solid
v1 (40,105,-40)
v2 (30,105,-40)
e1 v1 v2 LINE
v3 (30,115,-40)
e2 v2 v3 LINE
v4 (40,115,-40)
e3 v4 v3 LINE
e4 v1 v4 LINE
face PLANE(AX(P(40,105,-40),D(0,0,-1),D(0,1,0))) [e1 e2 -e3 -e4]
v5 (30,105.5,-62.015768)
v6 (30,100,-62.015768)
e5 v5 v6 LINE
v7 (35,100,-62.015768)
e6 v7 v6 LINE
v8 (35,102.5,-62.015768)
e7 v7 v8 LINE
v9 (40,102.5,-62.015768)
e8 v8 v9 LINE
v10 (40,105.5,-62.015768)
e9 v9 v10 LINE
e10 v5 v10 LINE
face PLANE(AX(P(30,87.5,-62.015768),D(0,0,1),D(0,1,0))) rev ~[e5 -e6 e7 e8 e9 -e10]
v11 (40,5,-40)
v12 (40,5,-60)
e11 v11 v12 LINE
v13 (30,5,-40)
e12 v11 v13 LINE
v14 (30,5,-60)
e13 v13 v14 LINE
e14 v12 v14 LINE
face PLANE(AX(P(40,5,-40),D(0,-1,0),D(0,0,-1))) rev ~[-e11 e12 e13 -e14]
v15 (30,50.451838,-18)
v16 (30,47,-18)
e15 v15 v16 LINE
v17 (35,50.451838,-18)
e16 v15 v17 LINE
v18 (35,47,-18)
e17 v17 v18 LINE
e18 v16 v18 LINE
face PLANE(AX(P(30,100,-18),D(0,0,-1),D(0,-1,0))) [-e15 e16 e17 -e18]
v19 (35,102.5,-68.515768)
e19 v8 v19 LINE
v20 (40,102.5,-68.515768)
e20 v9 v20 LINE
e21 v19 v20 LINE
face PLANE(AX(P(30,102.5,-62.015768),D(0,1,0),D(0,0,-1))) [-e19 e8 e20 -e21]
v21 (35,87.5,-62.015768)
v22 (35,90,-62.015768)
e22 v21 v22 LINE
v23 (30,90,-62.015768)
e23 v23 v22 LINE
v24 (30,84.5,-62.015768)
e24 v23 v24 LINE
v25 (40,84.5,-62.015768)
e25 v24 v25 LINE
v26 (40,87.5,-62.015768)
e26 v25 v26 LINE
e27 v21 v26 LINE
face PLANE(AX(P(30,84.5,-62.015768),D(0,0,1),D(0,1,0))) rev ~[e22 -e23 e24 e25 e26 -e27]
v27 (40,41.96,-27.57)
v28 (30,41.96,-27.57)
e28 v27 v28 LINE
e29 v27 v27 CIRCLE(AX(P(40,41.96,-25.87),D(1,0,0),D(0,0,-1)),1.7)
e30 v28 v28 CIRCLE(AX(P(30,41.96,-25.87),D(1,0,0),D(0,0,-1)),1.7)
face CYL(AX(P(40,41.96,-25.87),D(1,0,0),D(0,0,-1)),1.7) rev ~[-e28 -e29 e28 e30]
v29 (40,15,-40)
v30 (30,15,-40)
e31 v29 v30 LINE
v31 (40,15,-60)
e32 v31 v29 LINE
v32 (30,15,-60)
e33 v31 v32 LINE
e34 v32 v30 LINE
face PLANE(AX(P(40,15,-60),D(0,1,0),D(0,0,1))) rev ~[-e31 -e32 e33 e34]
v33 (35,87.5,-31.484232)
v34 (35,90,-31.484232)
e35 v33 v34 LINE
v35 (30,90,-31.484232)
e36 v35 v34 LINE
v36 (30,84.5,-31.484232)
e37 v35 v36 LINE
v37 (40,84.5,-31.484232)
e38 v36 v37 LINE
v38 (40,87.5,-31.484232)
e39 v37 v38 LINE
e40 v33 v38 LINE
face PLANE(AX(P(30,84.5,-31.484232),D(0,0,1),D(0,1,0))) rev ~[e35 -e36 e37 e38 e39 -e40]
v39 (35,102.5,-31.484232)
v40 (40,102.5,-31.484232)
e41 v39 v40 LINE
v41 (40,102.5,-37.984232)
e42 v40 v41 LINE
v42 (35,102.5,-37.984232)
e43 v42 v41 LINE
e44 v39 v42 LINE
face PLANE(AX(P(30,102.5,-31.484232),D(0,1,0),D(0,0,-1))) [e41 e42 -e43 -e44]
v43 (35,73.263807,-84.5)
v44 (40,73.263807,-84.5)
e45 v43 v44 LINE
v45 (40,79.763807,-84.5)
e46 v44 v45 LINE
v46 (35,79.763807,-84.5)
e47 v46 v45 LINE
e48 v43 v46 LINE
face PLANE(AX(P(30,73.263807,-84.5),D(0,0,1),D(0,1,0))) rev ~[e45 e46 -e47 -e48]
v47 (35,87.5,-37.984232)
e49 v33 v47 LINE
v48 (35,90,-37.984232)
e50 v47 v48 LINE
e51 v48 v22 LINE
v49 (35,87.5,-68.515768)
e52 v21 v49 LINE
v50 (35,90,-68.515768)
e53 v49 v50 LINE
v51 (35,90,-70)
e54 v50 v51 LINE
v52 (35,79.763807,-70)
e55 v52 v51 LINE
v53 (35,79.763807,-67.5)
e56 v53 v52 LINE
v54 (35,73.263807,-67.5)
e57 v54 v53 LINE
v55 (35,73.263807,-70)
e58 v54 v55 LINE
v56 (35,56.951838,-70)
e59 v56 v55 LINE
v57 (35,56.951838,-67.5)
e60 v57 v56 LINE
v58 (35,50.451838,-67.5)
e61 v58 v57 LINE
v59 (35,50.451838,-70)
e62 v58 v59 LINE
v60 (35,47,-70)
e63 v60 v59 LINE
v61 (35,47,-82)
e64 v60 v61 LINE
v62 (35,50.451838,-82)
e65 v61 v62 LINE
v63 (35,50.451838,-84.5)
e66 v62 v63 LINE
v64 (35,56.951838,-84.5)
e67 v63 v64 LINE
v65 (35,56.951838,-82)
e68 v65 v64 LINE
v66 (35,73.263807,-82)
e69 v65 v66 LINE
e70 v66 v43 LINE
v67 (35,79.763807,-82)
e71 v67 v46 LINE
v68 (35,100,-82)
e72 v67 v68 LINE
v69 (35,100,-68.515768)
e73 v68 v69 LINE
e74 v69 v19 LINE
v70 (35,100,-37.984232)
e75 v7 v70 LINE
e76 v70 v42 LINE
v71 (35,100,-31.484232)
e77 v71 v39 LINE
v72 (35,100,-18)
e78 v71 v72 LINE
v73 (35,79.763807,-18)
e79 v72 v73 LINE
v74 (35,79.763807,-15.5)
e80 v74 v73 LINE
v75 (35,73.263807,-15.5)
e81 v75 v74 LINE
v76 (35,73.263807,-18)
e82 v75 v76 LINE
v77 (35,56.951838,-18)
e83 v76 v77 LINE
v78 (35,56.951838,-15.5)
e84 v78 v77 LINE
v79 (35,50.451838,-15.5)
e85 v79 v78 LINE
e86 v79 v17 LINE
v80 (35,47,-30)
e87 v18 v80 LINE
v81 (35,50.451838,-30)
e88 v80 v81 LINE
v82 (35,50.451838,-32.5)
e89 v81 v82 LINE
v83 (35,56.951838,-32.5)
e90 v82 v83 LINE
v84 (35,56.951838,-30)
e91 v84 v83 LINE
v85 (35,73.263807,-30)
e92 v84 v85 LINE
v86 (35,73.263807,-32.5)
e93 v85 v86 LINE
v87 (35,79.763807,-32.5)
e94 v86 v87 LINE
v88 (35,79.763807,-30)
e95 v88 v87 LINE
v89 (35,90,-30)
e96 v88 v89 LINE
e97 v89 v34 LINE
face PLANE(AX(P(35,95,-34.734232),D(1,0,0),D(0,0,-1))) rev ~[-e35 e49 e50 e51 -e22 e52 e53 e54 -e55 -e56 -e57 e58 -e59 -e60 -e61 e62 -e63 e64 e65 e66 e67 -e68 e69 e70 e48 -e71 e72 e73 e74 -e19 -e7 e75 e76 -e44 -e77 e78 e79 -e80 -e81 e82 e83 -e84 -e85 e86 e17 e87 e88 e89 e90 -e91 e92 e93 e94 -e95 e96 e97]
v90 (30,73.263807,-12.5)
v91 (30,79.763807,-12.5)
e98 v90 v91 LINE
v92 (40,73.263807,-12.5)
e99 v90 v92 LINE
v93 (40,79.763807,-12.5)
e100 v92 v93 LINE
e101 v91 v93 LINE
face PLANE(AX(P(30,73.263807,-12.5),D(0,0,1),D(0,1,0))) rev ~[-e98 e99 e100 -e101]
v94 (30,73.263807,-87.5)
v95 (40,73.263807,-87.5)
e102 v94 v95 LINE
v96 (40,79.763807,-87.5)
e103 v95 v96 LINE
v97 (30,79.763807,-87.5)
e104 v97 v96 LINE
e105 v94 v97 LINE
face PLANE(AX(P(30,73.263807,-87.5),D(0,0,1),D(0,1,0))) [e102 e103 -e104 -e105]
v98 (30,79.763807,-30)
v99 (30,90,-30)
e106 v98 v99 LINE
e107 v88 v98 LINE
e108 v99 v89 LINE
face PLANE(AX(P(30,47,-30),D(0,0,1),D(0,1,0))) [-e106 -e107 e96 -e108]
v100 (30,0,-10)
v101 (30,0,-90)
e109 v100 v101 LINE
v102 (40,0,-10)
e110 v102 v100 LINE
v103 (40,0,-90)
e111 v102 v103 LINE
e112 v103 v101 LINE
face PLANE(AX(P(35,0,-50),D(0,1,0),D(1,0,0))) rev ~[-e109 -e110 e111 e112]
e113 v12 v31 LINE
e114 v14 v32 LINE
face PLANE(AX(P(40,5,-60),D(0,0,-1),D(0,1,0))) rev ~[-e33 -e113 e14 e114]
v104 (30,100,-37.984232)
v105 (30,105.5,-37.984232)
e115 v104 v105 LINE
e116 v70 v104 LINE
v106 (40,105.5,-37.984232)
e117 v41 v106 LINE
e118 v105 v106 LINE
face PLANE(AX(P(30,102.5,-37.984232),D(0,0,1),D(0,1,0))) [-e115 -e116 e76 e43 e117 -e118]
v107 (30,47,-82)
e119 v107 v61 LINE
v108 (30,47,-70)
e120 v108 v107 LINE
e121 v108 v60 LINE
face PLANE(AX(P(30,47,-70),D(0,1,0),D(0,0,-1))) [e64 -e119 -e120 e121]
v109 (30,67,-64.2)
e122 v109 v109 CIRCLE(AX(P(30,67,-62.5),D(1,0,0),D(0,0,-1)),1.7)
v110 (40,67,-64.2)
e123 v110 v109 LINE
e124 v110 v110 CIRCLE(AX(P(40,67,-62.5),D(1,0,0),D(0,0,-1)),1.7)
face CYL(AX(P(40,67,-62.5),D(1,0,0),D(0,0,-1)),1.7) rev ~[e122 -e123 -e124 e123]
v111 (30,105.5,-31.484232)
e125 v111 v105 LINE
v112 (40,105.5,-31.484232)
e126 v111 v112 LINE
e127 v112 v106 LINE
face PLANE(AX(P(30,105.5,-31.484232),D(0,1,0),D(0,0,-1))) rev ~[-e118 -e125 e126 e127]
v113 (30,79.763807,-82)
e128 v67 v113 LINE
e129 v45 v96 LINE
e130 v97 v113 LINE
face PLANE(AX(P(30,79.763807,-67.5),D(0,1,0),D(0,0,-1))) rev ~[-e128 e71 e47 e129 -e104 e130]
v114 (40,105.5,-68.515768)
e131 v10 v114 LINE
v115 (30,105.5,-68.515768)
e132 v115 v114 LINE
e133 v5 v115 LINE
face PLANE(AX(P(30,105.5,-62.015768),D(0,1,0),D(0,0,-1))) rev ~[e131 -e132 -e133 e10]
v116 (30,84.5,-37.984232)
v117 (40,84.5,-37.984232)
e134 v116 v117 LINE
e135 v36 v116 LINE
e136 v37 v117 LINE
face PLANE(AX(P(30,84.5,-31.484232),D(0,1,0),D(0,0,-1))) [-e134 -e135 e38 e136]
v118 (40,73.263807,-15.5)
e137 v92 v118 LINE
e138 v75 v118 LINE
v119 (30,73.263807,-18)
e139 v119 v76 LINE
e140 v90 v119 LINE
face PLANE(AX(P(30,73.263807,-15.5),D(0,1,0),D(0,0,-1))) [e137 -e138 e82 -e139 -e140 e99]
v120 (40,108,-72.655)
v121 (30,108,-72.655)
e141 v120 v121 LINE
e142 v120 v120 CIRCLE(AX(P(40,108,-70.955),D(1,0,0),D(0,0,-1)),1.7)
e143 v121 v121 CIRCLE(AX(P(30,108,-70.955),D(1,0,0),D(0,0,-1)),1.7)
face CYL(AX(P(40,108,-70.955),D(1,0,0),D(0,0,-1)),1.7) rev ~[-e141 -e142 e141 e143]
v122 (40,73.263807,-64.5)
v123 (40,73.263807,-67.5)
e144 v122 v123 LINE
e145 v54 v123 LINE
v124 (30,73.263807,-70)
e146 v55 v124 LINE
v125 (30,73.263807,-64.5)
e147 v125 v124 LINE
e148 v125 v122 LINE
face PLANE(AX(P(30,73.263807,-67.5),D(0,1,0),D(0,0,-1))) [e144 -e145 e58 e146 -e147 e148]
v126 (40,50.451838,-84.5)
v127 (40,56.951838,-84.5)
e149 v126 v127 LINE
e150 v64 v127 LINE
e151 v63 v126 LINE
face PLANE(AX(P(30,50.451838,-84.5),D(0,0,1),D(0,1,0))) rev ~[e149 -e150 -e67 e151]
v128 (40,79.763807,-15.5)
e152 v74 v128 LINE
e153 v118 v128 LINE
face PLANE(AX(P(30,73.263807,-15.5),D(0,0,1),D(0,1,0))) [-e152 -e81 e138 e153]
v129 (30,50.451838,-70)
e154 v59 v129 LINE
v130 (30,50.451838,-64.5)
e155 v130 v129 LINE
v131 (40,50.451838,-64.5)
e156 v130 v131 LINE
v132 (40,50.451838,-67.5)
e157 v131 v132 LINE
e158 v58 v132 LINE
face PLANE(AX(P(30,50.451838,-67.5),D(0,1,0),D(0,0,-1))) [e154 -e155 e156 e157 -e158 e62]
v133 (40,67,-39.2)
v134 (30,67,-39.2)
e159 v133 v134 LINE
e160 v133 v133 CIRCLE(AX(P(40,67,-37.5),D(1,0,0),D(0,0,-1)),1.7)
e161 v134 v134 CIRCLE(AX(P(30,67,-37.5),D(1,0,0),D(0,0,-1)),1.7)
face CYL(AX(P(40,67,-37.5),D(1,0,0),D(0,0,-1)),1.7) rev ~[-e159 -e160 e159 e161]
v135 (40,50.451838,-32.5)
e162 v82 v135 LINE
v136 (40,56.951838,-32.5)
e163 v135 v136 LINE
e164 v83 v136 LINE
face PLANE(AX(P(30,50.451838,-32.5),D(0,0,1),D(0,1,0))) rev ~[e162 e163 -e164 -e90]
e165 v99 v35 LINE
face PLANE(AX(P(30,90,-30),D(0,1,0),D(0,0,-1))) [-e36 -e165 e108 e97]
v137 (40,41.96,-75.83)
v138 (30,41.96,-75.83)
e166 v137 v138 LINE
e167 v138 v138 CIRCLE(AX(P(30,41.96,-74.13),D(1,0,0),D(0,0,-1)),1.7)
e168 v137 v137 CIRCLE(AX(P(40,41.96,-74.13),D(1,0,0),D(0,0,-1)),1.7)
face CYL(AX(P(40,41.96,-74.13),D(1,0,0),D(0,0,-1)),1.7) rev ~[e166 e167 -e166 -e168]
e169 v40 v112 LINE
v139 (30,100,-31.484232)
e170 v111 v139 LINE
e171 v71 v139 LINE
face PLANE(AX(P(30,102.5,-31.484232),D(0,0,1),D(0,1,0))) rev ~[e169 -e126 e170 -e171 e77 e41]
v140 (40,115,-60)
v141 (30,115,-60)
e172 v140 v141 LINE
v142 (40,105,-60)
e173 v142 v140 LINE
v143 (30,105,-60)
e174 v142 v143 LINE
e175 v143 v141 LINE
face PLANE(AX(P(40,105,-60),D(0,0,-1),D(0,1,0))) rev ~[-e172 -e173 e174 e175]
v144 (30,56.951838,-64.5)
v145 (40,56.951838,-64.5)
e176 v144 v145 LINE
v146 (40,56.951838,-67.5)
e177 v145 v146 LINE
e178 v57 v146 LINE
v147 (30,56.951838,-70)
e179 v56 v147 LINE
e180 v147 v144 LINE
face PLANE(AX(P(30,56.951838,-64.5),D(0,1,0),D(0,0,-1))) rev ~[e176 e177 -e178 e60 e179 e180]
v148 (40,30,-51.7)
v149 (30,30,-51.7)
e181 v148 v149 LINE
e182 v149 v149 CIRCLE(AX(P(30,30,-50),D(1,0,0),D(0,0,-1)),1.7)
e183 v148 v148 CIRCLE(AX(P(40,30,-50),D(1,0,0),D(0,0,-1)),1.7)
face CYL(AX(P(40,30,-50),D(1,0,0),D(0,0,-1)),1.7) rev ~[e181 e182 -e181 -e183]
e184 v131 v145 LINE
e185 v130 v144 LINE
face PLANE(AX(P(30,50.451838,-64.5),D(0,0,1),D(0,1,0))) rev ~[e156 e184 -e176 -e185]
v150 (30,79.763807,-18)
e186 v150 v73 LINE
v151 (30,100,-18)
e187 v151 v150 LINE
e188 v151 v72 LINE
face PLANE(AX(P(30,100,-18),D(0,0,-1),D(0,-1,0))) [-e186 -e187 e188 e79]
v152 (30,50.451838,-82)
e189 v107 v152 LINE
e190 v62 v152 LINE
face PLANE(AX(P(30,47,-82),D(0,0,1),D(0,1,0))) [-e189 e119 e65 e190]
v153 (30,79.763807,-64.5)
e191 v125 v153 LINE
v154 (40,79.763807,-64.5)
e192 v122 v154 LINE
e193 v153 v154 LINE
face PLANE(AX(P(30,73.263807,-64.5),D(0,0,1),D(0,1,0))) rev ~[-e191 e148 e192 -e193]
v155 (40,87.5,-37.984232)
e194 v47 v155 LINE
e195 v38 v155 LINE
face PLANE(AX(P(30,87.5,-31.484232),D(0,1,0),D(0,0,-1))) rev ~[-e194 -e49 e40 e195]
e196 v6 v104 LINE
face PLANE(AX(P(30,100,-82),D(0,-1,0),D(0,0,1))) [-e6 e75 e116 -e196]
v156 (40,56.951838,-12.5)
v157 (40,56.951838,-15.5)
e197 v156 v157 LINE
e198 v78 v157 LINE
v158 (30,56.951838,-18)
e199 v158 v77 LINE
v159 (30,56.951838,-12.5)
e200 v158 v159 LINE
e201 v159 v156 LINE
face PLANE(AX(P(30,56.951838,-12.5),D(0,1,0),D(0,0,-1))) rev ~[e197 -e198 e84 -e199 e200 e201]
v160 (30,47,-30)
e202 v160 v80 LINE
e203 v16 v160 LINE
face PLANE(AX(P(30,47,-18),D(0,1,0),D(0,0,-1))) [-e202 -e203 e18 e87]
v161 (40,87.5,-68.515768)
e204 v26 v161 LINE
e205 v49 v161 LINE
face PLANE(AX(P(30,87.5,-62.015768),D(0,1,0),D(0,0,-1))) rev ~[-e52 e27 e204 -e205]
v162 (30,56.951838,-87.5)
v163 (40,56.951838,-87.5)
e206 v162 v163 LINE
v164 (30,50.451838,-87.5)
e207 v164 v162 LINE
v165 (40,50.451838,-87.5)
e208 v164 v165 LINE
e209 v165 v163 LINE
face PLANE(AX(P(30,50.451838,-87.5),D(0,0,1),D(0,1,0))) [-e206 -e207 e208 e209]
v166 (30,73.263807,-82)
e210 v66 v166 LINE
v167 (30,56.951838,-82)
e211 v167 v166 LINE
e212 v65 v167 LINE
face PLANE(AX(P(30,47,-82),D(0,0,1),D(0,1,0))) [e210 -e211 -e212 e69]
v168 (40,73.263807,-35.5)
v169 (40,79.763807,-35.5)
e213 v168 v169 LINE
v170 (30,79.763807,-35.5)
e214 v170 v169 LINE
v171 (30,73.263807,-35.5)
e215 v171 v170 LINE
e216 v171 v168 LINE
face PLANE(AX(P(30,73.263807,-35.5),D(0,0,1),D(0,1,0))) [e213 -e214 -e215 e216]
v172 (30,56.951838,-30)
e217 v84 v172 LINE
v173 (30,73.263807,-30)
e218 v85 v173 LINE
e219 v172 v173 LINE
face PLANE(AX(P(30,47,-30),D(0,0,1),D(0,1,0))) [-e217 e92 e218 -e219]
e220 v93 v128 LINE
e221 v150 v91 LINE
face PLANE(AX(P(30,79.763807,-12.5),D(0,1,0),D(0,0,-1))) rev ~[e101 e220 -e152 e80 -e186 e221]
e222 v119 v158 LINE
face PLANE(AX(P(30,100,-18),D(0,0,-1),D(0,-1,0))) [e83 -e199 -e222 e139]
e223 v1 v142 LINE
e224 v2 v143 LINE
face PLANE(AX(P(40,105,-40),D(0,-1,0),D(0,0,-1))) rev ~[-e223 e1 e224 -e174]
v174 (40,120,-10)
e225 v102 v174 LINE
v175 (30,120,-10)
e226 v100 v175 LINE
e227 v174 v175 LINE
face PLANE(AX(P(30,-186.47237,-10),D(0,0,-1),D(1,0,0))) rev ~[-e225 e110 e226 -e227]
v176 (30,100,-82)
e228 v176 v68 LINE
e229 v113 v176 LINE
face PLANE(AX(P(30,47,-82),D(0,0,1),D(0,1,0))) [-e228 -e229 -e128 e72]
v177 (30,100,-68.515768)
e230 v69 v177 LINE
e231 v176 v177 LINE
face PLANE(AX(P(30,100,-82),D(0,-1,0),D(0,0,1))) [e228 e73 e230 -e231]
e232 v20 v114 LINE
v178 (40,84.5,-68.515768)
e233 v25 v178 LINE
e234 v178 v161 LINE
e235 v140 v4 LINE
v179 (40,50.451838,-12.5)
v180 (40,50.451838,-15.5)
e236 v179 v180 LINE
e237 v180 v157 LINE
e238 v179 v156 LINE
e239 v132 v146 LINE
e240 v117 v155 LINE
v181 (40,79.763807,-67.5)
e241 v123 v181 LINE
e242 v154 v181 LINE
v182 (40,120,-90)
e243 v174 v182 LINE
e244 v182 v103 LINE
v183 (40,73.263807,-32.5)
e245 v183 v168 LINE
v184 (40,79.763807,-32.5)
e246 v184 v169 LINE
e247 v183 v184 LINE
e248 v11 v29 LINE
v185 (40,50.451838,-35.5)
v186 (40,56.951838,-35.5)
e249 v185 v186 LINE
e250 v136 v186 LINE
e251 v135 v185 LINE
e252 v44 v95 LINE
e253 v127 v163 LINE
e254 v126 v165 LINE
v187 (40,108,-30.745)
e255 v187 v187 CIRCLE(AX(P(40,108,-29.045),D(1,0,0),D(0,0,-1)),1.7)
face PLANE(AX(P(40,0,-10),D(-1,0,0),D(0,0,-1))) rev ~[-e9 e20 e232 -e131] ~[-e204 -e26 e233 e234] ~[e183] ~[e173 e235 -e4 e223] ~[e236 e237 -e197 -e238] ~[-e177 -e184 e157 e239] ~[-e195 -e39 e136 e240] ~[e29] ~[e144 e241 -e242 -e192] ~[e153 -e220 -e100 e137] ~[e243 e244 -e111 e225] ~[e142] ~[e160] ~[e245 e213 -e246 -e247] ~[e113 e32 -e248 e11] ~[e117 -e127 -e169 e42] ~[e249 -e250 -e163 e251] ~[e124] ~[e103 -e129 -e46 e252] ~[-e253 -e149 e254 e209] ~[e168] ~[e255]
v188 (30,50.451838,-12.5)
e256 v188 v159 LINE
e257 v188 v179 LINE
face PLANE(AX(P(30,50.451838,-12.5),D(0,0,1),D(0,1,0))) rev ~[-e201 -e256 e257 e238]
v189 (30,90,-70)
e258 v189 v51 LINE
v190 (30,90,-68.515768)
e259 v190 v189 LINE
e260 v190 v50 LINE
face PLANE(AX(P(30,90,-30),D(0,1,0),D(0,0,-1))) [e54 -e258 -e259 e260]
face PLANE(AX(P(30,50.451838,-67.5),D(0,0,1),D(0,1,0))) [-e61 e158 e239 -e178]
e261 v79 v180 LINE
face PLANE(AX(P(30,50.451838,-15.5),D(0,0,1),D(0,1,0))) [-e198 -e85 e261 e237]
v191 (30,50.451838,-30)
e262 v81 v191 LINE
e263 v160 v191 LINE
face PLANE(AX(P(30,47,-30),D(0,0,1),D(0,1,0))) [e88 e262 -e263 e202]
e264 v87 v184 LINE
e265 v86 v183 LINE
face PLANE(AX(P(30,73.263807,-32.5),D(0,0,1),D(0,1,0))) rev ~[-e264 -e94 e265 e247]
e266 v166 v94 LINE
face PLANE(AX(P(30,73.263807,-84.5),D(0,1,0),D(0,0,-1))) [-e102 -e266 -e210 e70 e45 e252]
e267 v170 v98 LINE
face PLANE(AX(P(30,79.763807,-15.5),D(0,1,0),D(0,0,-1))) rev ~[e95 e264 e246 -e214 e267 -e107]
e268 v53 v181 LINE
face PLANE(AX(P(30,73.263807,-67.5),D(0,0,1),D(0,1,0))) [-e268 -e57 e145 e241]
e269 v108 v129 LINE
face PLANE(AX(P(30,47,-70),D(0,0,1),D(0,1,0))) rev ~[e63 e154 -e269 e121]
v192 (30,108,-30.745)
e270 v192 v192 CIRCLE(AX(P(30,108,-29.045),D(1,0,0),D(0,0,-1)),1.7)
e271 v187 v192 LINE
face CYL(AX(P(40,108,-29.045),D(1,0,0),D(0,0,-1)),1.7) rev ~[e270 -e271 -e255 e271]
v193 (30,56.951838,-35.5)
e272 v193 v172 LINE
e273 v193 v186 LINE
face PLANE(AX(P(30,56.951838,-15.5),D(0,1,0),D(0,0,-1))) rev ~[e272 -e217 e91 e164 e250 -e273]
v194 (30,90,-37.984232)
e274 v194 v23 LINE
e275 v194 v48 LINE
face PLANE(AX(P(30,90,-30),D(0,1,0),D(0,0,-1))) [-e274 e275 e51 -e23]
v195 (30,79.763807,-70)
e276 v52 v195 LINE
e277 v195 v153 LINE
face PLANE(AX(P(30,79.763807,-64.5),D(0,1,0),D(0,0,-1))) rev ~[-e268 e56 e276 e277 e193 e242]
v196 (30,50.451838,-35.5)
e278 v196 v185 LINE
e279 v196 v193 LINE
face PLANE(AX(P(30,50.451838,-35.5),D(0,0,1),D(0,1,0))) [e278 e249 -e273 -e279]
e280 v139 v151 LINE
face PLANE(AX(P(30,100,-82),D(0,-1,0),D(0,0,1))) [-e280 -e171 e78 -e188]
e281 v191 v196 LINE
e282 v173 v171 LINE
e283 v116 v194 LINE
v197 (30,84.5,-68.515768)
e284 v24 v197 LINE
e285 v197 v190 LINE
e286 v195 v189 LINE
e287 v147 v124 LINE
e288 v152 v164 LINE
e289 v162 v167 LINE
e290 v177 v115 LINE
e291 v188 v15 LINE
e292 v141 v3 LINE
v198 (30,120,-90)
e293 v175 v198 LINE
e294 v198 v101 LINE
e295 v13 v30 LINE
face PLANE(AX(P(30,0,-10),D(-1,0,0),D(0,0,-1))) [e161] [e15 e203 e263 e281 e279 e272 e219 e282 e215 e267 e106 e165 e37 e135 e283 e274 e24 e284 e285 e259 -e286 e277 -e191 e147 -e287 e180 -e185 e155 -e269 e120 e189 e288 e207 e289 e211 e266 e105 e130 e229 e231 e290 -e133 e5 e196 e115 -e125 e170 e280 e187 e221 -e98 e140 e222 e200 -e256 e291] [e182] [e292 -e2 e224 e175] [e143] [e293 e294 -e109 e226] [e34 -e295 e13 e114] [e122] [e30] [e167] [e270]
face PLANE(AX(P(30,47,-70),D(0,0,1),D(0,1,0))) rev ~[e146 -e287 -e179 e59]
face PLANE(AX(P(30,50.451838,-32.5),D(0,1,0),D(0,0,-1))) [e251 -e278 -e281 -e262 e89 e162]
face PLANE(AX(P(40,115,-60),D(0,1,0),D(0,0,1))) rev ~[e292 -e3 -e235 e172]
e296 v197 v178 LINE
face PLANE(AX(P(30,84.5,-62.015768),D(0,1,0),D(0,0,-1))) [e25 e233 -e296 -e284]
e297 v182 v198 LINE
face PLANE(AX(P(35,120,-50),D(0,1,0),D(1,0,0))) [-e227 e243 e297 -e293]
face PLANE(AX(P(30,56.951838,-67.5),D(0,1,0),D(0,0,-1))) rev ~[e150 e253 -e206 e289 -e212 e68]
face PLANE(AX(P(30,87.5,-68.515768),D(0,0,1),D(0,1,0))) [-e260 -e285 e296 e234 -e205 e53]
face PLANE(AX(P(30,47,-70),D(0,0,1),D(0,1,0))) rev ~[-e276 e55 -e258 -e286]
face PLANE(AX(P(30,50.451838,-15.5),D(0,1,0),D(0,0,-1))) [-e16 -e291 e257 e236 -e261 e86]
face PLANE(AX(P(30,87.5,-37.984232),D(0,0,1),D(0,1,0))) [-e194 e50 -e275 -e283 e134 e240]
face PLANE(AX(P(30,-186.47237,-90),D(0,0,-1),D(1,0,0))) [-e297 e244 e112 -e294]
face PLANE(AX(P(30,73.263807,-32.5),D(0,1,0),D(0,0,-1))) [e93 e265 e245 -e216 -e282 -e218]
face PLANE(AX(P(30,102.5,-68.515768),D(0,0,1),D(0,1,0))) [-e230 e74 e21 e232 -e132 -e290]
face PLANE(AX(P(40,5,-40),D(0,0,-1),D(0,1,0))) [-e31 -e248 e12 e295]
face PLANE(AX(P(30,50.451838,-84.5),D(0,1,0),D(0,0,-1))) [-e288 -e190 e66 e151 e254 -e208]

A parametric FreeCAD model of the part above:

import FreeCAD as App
import Part
import Sketcher
Q = App.Units.Quantity


def add_polygon(sketch, points):
    """Adds a closed chain of lines whose ends are joined by coincident constraints."""
    first, n = sketch.GeometryCount, len(points)
    for a, b in zip(points, points[1:] + points[:1]):
        sketch.addGeometry(Part.LineSegment(App.Vector(*a, 0), App.Vector(*b, 0)), False)
    for i in range(n):
        sketch.addConstraint(Sketcher.Constraint("Coincident", first + i, 2, first + (i + 1) % n, 1))

doc = App.newDocument("Part")
body = doc.addObject("PartDesign::Body", "Body")

# Sketch on XZ plane
sketch1 = doc.addObject("Sketcher::SketchObject", "Sketch")
body.addObject(sketch1)
sketch1.AttachmentSupport = (doc.XZ_Plane, [""])
sketch1.MapMode = "FlatFace"
add_polygon(sketch1, [(0, -100), (0, 0), (100, 0), (100, -100)])  # lines 0-3
add_polygon(sketch1, [(90, -10), (10, -10), (10, -90), (90, -90)])  # lines 4-7
sketch1.addConstraint([
    Sketcher.Constraint("Vertical", 0),
    Sketcher.Constraint("Horizontal", 1),
    Sketcher.Constraint("Vertical", 2),
    Sketcher.Constraint("Horizontal", 3),
    Sketcher.Constraint("Horizontal", 4),
    Sketcher.Constraint("Vertical", 5),
    Sketcher.Constraint("Horizontal", 6),
    Sketcher.Constraint("Vertical", 7),
    Sketcher.Constraint("Coincident", 0, 2, -1, 1),
    Sketcher.Constraint("Equal", 3, 0),
    Sketcher.Constraint("Equal", 6, 5),
    Sketcher.Constraint("DistanceX", 1, 1, 1, 2, Q("100 mm")),
    Sketcher.Constraint("DistanceX", 4, 2, 4, 1, Q("80 mm")),
    Sketcher.Constraint("DistanceX", -1, 1, 4, 2, Q("10 mm")),
    Sketcher.Constraint("DistanceY", 4, 2, -1, 1, Q("10 mm")),
])
pad1 = doc.addObject("PartDesign::Pad", "Pad")
body.addObject(pad1)
pad1.Profile = sketch1
pad1.Length = 120
pad1.Reversed = True

# Sketch on XY plane
sketch2 = doc.addObject("Sketcher::SketchObject", "Sketch001")
body.addObject(sketch2)
sketch2.AttachmentSupport = (doc.XY_Plane, [""])
sketch2.MapMode = "FlatFace"
add_polygon(sketch2, [(14.841875, 110), (50, 67.81025), (85.158125, 110)])  # lines 0-2
add_polygon(sketch2, [(90, 100.18975), (56.508541, 60), (90, 19.81025)])  # lines 3-5
add_polygon(sketch2, [(50, 52.18975), (14.841875, 10), (85.158125, 10)])  # lines 6-8
add_polygon(sketch2, [(10, 19.81025), (43.491459, 60), (10, 100.18975)])  # lines 9-11
sketch2.addConstraint([
    Sketcher.Constraint("Horizontal", 2),
    Sketcher.Constraint("Vertical", 5),
    Sketcher.Constraint("Horizontal", 7),
    Sketcher.Constraint("Vertical", 11),
    Sketcher.Constraint("Parallel", 1, 3),
    Sketcher.Constraint("Parallel", 0, 4),
    Sketcher.Constraint("Parallel", 3, 6),
    Sketcher.Constraint("Parallel", 4, 8),
    Sketcher.Constraint("Parallel", 6, 9),
    Sketcher.Constraint("Parallel", 8, 10),
    Sketcher.Constraint("Horizontal", 3, 2, 9, 2),
    Sketcher.Constraint("Horizontal", 5, 2, 10, 2),
    Sketcher.Constraint("Horizontal", 4, 2, 11, 2),
    Sketcher.Constraint("Vertical", 2, 2, 6, 2),
    Sketcher.Constraint("Vertical", 1, 2, 7, 2),
    Sketcher.Constraint("DistanceX", -1, 1, 0, 2, Q("50 mm")),
    Sketcher.Constraint("DistanceY", -1, 1, 1, 2, Q("110 mm")),
    Sketcher.Constraint("DistanceY", -1, 1, 3, 2, Q("60 mm")),
    Sketcher.Constraint("DistanceX", -1, 1, 4, 2, Q("90 mm")),
    Sketcher.Constraint("DistanceY", -1, 1, 6, 2, Q("10 mm")),
    Sketcher.Constraint("DistanceX", -1, 1, 10, 2, Q("10 mm")),
    Sketcher.Constraint("DistanceY", 4, 2, 0, 2, Q("48 mm")),
    Sketcher.Constraint("DistanceY", 5, 1, 5, 2, Q("80.379501 mm")),
    Sketcher.Constraint("DistanceX", 2, 2, 2, 1, Q("70.316251 mm")),
])
pocket1 = doc.addObject("PartDesign::Pocket", "Pocket")
body.addObject(pocket1)
pocket1.Profile = sketch2
pocket1.Length = 372.94474
pocket1.Midplane = True
doc.recompute()

datumline = doc.addObject("PartDesign::Line", "DatumLine")
body.addObject(datumline)
datumline.Placement = App.Placement(App.Vector(50, 0, -50), App.Rotation(App.Vector(0, 0, 1), App.Vector(0, 1, 0)))
polarpattern = doc.addObject("PartDesign::PolarPattern", "PolarPattern")
body.addObject(polarpattern)
polarpattern.Originals = [pocket1]
polarpattern.Axis = (datumline, [""])
polarpattern.Angle = 90
polarpattern.Occurrences = 2
body.Tip = polarpattern

# Sketch on XZ plane
sketch3 = doc.addObject("Sketcher::SketchObject", "Sketch002")
body.addObject(sketch3)
sketch3.AttachmentSupport = (doc.XZ_Plane, [""])
sketch3.MapMode = "FlatFace"
sketch3.AttachmentOffset = App.Placement(App.Vector(0, 0, -120), App.Rotation())
sketch3.addGeometry([
    Part.Circle(App.Vector(13.375, -86.625, 0), App.Vector(0, 0, 1), 13.375),  # 0
    Part.Circle(App.Vector(13.375, -86.625, 0), App.Vector(0, 0, 1), 8.4375),  # 1
    Part.Circle(App.Vector(86.625, -86.625, 0), App.Vector(0, 0, 1), 13.375),  # 2
    Part.Circle(App.Vector(86.625, -86.625, 0), App.Vector(0, 0, 1), 8.4375),  # 3
    Part.Circle(App.Vector(86.625, -13.375, 0), App.Vector(0, 0, 1), 13.375),  # 4
    Part.Circle(App.Vector(86.625, -13.375, 0), App.Vector(0, 0, 1), 8.4375),  # 5
    Part.Circle(App.Vector(13.375, -13.375, 0), App.Vector(0, 0, 1), 13.375),  # 6
    Part.Circle(App.Vector(13.375, -13.375, 0), App.Vector(0, 0, 1), 8.4375),  # 7
], False)
sketch3.addConstraint([
    Sketcher.Constraint("Coincident", 1, 3, 0, 3),
    Sketcher.Constraint("Coincident", 3, 3, 2, 3),
    Sketcher.Constraint("Coincident", 5, 3, 4, 3),
    Sketcher.Constraint("Coincident", 7, 3, 6, 3),
    Sketcher.Constraint("Equal", 0, 2),
    Sketcher.Constraint("Equal", 1, 3),
    Sketcher.Constraint("Equal", 2, 4),
    Sketcher.Constraint("Equal", 3, 5),
    Sketcher.Constraint("Equal", 4, 6),
    Sketcher.Constraint("Equal", 5, 7),
    Sketcher.Constraint("Horizontal", 1, 3, 2, 3),
    Sketcher.Constraint("Horizontal", 5, 3, 6, 3),
    Sketcher.Constraint("Vertical", 3, 3, 4, 3),
    Sketcher.Constraint("Vertical", 1, 3, 6, 3),
    Sketcher.Constraint("Diameter", 0, Q("26.75 mm")),
    Sketcher.Constraint("Diameter", 1, Q("16.875 mm")),
    Sketcher.Constraint("DistanceX", 0, 3, 2, 3, Q("73.25 mm")),
    Sketcher.Constraint("DistanceY", 2, 3, 4, 3, Q("73.25 mm")),
    Sketcher.Constraint("DistanceX", -1, 1, 0, 3, Q("13.375 mm")),
    Sketcher.Constraint("DistanceY", 0, 3, -1, 1, Q("86.625 mm")),
])
pad2 = doc.addObject("PartDesign::Pad", "Pad001")
body.addObject(pad2)
pad2.Profile = sketch3
pad2.Length = 10

# Sketch on XZ plane
sketch4 = doc.addObject("Sketcher::SketchObject", "Sketch003")
body.addObject(sketch4)
sketch4.AttachmentSupport = (doc.XZ_Plane, [""])
sketch4.MapMode = "FlatFace"
sketch4.AttachmentOffset = App.Placement(App.Vector(0, 0, -10), App.Rotation())
sketch4.addGeometry([
    Part.Circle(App.Vector(13.375, -86.625, 0), App.Vector(0, 0, 1), 13.375),  # 0
    Part.Circle(App.Vector(86.625, -86.625, 0), App.Vector(0, 0, 1), 13.375),  # 1
    Part.Circle(App.Vector(86.625, -86.625, 0), App.Vector(0, 0, 1), 8.4375),  # 2
    Part.Circle(App.Vector(86.625, -13.375, 0), App.Vector(0, 0, 1), 13.375),  # 3
    Part.Circle(App.Vector(86.625, -13.375, 0), App.Vector(0, 0, 1), 8.4375),  # 4
    Part.Circle(App.Vector(13.375, -13.375, 0), App.Vector(0, 0, 1), 13.375),  # 5
    Part.Circle(App.Vector(13.375, -13.375, 0), App.Vector(0, 0, 1), 8.4375),  # 6
], False)
sketch4.addConstraint([
    Sketcher.Constraint("Coincident", 2, 3, 1, 3),
    Sketcher.Constraint("Coincident", 4, 3, 3, 3),
    Sketcher.Constraint("Coincident", 6, 3, 5, 3),
    Sketcher.Constraint("Equal", 0, 1),
    Sketcher.Constraint("Equal", 1, 3),
    Sketcher.Constraint("Equal", 2, 4),
    Sketcher.Constraint("Equal", 3, 5),
    Sketcher.Constraint("Equal", 4, 6),
    Sketcher.Constraint("Horizontal", 0, 3, 1, 3),
    Sketcher.Constraint("Horizontal", 4, 3, 5, 3),
    Sketcher.Constraint("Vertical", 2, 3, 3, 3),
    Sketcher.Constraint("Vertical", 0, 3, 5, 3),
    Sketcher.Constraint("Diameter", 0, Q("26.75 mm")),
    Sketcher.Constraint("Diameter", 2, Q("16.875 mm")),
    Sketcher.Constraint("DistanceX", 0, 3, 1, 3, Q("73.25 mm")),
    Sketcher.Constraint("DistanceY", 1, 3, 3, 3, Q("73.25 mm")),
    Sketcher.Constraint("DistanceX", -1, 1, 0, 3, Q("13.375 mm")),
    Sketcher.Constraint("DistanceY", 0, 3, -1, 1, Q("86.625 mm")),
])
pad3 = doc.addObject("PartDesign::Pad", "Pad002")
body.addObject(pad3)
pad3.Profile = sketch4
pad3.Length = 10

# Sketch on XZ plane
sketch5 = doc.addObject("Sketcher::SketchObject", "Sketch004")
body.addObject(sketch5)
sketch5.AttachmentSupport = (doc.XZ_Plane, [""])
sketch5.MapMode = "FlatFace"
sketch5.addGeometry([
    Part.Circle(App.Vector(13.375, -86.625, 0), App.Vector(0, 0, 1), 8.4375),
    Part.Circle(App.Vector(86.625, -86.625, 0), App.Vector(0, 0, 1), 8.4375),
    Part.Circle(App.Vector(13.375, -13.375, 0), App.Vector(0, 0, 1), 8.4375),
    Part.Circle(App.Vector(86.625, -13.375, 0), App.Vector(0, 0, 1), 8.4375),
], False)
sketch5.addConstraint([
    Sketcher.Constraint("Equal", 0, 1),
    Sketcher.Constraint("Equal", 1, 2),
    Sketcher.Constraint("Equal", 2, 3),
    Sketcher.Constraint("Horizontal", 0, 3, 1, 3),
    Sketcher.Constraint("Horizontal", 2, 3, 3, 3),
    Sketcher.Constraint("Vertical", 0, 3, 2, 3),
    Sketcher.Constraint("Vertical", 1, 3, 3, 3),
    Sketcher.Constraint("Diameter", 0, Q("16.875 mm")),
    Sketcher.Constraint("DistanceX", 0, 3, 1, 3, Q("73.25 mm")),
    Sketcher.Constraint("DistanceY", 0, 3, 2, 3, Q("73.25 mm")),
    Sketcher.Constraint("DistanceX", -1, 1, 0, 3, Q("13.375 mm")),
    Sketcher.Constraint("DistanceY", 0, 3, -1, 1, Q("86.625 mm")),
])
pocket2 = doc.addObject("PartDesign::Pocket", "Pocket001")
body.addObject(pocket2)
pocket2.Profile = sketch5
pocket2.Type = "ThroughAll"
pocket2.Midplane = True

# Sketch on XZ plane
sketch6 = doc.addObject("Sketcher::SketchObject", "Sketch005")
body.addObject(sketch6)
sketch6.AttachmentSupport = (doc.XZ_Plane, [""])
sketch6.MapMode = "FlatFace"
sketch6.AttachmentOffset = App.Placement(App.Vector(0, 0, -120), App.Rotation())
sketch6.addGeometry([
    Part.Circle(App.Vector(5, -50, 0), App.Vector(0, 0, 1), 1.5),
    Part.Circle(App.Vector(50, -95, 0), App.Vector(0, 0, 1), 1.5),
    Part.Circle(App.Vector(95, -50, 0), App.Vector(0, 0, 1), 1.5),
    Part.Circle(App.Vector(50, -5, 0), App.Vector(0, 0, 1), 1.5),
], False)
sketch6.addConstraint([
    Sketcher.Constraint("Equal", 0, 1),
    Sketcher.Constraint("Equal", 1, 2),
    Sketcher.Constraint("Equal", 2, 3),
    Sketcher.Constraint("Horizontal", 0, 3, 2, 3),
    Sketcher.Constraint("Vertical", 1, 3, 3, 3),
    Sketcher.Constraint("Diameter", 0, Q("3 mm")),
    Sketcher.Constraint("DistanceX", -1, 1, 0, 3, Q("5 mm")),
    Sketcher.Constraint("DistanceY", 0, 3, -1, 1, Q("50 mm")),
    Sketcher.Constraint("DistanceX", -1, 1, 1, 3, Q("50 mm")),
    Sketcher.Constraint("DistanceY", 1, 3, -1, 1, Q("95 mm")),
    Sketcher.Constraint("DistanceX", -1, 1, 2, 3, Q("95 mm")),
    Sketcher.Constraint("DistanceY", 3, 3, -1, 1, Q("5 mm")),
])
pocket3 = doc.addObject("PartDesign::Pocket", "Pocket002")
body.addObject(pocket3)
pocket3.Profile = sketch6
pocket3.Length = 10
pocket3.Reversed = True

# Sketch on XZ plane
sketch7 = doc.addObject("Sketcher::SketchObject", "Sketch006")
body.addObject(sketch7)
sketch7.AttachmentSupport = (doc.XZ_Plane, [""])
sketch7.MapMode = "FlatFace"
sketch7.AttachmentOffset = App.Placement(App.Vector(0, 0, -10), App.Rotation())
sketch7.addGeometry([
    Part.Circle(App.Vector(5, -50, 0), App.Vector(0, 0, 1), 1.5),
    Part.Circle(App.Vector(50, -95, 0), App.Vector(0, 0, 1), 1.5),
    Part.Circle(App.Vector(95, -50, 0), App.Vector(0, 0, 1), 1.5),
    Part.Circle(App.Vector(50, -5, 0), App.Vector(0, 0, 1), 1.5),
], False)
sketch7.addConstraint([
    Sketcher.Constraint("Equal", 0, 1),
    Sketcher.Constraint("Equal", 1, 2),
    Sketcher.Constraint("Equal", 2, 3),
    Sketcher.Constraint("Horizontal", 0, 3, 2, 3),
    Sketcher.Constraint("Vertical", 1, 3, 3, 3),
    Sketcher.Constraint("Diameter", 0, Q("3 mm")),
    Sketcher.Constraint("DistanceX", -1, 1, 0, 3, Q("5 mm")),
    Sketcher.Constraint("DistanceY", 0, 3, -1, 1, Q("50 mm")),
    Sketcher.Constraint("DistanceX", -1, 1, 1, 3, Q("50 mm")),
    Sketcher.Constraint("DistanceY", 1, 3, -1, 1, Q("95 mm")),
    Sketcher.Constraint("DistanceX", -1, 1, 2, 3, Q("95 mm")),
    Sketcher.Constraint("DistanceY", 3, 3, -1, 1, Q("5 mm")),
])
pocket4 = doc.addObject("PartDesign::Pocket", "Pocket003")
body.addObject(pocket4)
pocket4.Profile = sketch7
pocket4.Length = 10
pocket4.Reversed = True

# Sketch on XZ plane
sketch8 = doc.addObject("Sketcher::SketchObject", "Sketch007")
body.addObject(sketch8)
sketch8.AttachmentSupport = (doc.XZ_Plane, [""])
sketch8.MapMode = "FlatFace"
add_polygon(sketch8, [(30, -90), (30, -10), (40, -10), (40, -90)])  # lines 0-3
sketch8.addConstraint([
    Sketcher.Constraint("Vertical", 0),
    Sketcher.Constraint("Horizontal", 1),
    Sketcher.Constraint("Vertical", 2),
    Sketcher.Constraint("Horizontal", 3),
    Sketcher.Constraint("DistanceX", 1, 1, 1, 2, Q("10 mm")),
    Sketcher.Constraint("DistanceY", 0, 1, 0, 2, Q("80 mm")),
    Sketcher.Constraint("DistanceX", -1, 1, 0, 2, Q("30 mm")),
    Sketcher.Constraint("DistanceY", 0, 2, -1, 1, Q("10 mm")),
])
pad4 = doc.addObject("PartDesign::Pad", "Pad003")
body.addObject(pad4)
pad4.Profile = sketch8
pad4.Length = 120
pad4.Reversed = True

# Sketch on YZ plane
sketch9 = doc.addObject("Sketcher::SketchObject", "Sketch008")
body.addObject(sketch9)
sketch9.AttachmentSupport = (doc.YZ_Plane, [""])
sketch9.MapMode = "FlatFace"
add_polygon(sketch9, [(110, -90), (10, -90), (10, -10), (110, -10)])  # lines 0-3
sketch9.addConstraint([
    Sketcher.Constraint("Horizontal", 0),
    Sketcher.Constraint("Vertical", 1),
    Sketcher.Constraint("Horizontal", 2),
    Sketcher.Constraint("Vertical", 3),
    Sketcher.Constraint("DistanceX", 0, 2, 0, 1, Q("100 mm")),
    Sketcher.Constraint("DistanceY", 1, 1, 1, 2, Q("80 mm")),
    Sketcher.Constraint("DistanceX", -1, 1, 0, 2, Q("10 mm")),
    Sketcher.Constraint("DistanceY", 0, 2, -1, 1, Q("90 mm")),
])
pocket5 = doc.addObject("PartDesign::Pocket", "Pocket004")
body.addObject(pocket5)
pocket5.Profile = sketch9
pocket5.Type = "UpToFirst"
pocket5.Reversed = True

# Sketch on YZ plane
sketch10 = doc.addObject("Sketcher::SketchObject", "Sketch009")
body.addObject(sketch10)
sketch10.AttachmentSupport = (doc.YZ_Plane, [""])
sketch10.MapMode = "FlatFace"
sketch10.AttachmentOffset = App.Placement(App.Vector(0, 0, 40), App.Rotation())
sketch10.addGeometry([
    Part.Circle(App.Vector(41.96, -25.87, 0), App.Vector(0, 0, 1), 1.7),
    Part.Circle(App.Vector(41.96, -74.13, 0), App.Vector(0, 0, 1), 1.7),
    Part.Circle(App.Vector(108, -29.045, 0), App.Vector(0, 0, 1), 1.7),
    Part.Circle(App.Vector(108, -70.955, 0), App.Vector(0, 0, 1), 1.7),
], False)
sketch10.addConstraint([
    Sketcher.Constraint("Equal", 0, 1),
    Sketcher.Constraint("Equal", 1, 2),
    Sketcher.Constraint("Equal", 2, 3),
    Sketcher.Constraint("Vertical", 0, 3, 1, 3),
    Sketcher.Constraint("Vertical", 2, 3, 3, 3),
    Sketcher.Constraint("Diameter", 0, Q("3.4 mm")),
    Sketcher.Constraint("DistanceX", -1, 1, 2, 3, Q("108 mm")),
    Sketcher.Constraint("DistanceX", -1, 1, 0, 3, Q("41.96 mm")),
    Sketcher.Constraint("DistanceY", 0, 3, -1, 1, Q("25.87 mm")),
    Sketcher.Constraint("DistanceY", 1, 3, -1, 1, Q("74.13 mm")),
    Sketcher.Constraint("DistanceY", 3, 3, 2, 3, Q("41.91 mm")),
    Sketcher.Constraint("DistanceY", 2, 3, -1, 1, Q("29.045 mm")),
])
pocket6 = doc.addObject("PartDesign::Pocket", "Pocket005")
body.addObject(pocket6)
pocket6.Profile = sketch10
pocket6.Length = 10

# Sketch on YZ plane
sketch11 = doc.addObject("Sketcher::SketchObject", "Sketch010")
body.addObject(sketch11)
sketch11.AttachmentSupport = (doc.YZ_Plane, [""])
sketch11.MapMode = "FlatFace"
sketch11.AttachmentOffset = App.Placement(App.Vector(0, 0, 40), App.Rotation())
sketch11.addGeometry([
    Part.Circle(App.Vector(30, -50, 0), App.Vector(0, 0, 1), 1.7),
    Part.Circle(App.Vector(67, -37.5, 0), App.Vector(0, 0, 1), 1.7),
    Part.Circle(App.Vector(67, -62.5, 0), App.Vector(0, 0, 1), 1.7),
], False)
sketch11.addConstraint([
    Sketcher.Constraint("Equal", 0, 1),
    Sketcher.Constraint("Equal", 1, 2),
    Sketcher.Constraint("Vertical", 1, 3, 2, 3),
    Sketcher.Constraint("Diameter", 0, Q("3.4 mm")),
    Sketcher.Constraint("DistanceX", -1, 1, 0, 3, Q("30 mm")),
    Sketcher.Constraint("DistanceY", 0, 3, -1, 1, Q("50 mm")),
    Sketcher.Constraint("DistanceX", -1, 1, 1, 3, Q("67 mm")),
    Sketcher.Constraint("DistanceY", 2, 3, 1, 3, Q("25 mm")),
    Sketcher.Constraint("DistanceY", 1, 3, -1, 1, Q("37.5 mm")),
])
pocket7 = doc.addObject("PartDesign::Pocket", "Pocket006")
body.addObject(pocket7)
pocket7.Profile = sketch11
pocket7.Length = 10

# Sketch on YZ plane
sketch12 = doc.addObject("Sketcher::SketchObject", "Sketch011")
body.addObject(sketch12)
sketch12.AttachmentSupport = (doc.YZ_Plane, [""])
sketch12.MapMode = "FlatFace"
sketch12.AttachmentOffset = App.Placement(App.Vector(0, 0, 30), App.Rotation())
add_polygon(sketch12, [(47, -18), (47, -30), (90, -30), (90, -70), (47, -70), (47, -82), (100, -82), (100, -18)])  # lines 0-7
sketch12.addConstraint([
    Sketcher.Constraint("Vertical", 0),
    Sketcher.Constraint("Horizontal", 1),
    Sketcher.Constraint("Vertical", 2),
    Sketcher.Constraint("Horizontal", 3),
    Sketcher.Constraint("Vertical", 4),
    Sketcher.Constraint("Horizontal", 5),
    Sketcher.Constraint("Vertical", 6),
    Sketcher.Constraint("Horizontal", 7),
    Sketcher.Constraint("Vertical", 0, 2, 3, 2),
    Sketcher.Constraint("Equal", 0, 4),
    Sketcher.Constraint("DistanceX", 1, 1, 1, 2, Q("43 mm")),
    Sketcher.Constraint("DistanceX", 5, 1, 5, 2, Q("53 mm")),
    Sketcher.Constraint("DistanceY", 0, 2, 0, 1, Q("12 mm")),
    Sketcher.Constraint("DistanceY", 2, 2, 2, 1, Q("40 mm")),
    Sketcher.Constraint("DistanceX", -1, 1, 0, 2, Q("47 mm")),
    Sketcher.Constraint("DistanceY", 0, 2, -1, 1, Q("30 mm")),
])
pocket8 = doc.addObject("PartDesign::Pocket", "Pocket007")
body.addObject(pocket8)
pocket8.Profile = sketch12
pocket8.Length = 5
pocket8.Reversed = True

# Sketch on YZ plane
sketch13 = doc.addObject("Sketcher::SketchObject", "Sketch012")
body.addObject(sketch13)
sketch13.AttachmentSupport = (doc.YZ_Plane, [""])
sketch13.MapMode = "FlatFace"
sketch13.AttachmentOffset = App.Placement(App.Vector(0, 0, 30), App.Rotation())
add_polygon(sketch13, [(56.951838, -32.5), (50.451838, -32.5), (50.451838, -35.5), (56.951838, -35.5)])  # lines 0-3
add_polygon(sketch13, [(56.951838, -12.5), (50.451838, -12.5), (50.451838, -15.5), (56.951838, -15.5)])  # lines 4-7
add_polygon(sketch13, [(79.763807, -32.5), (73.263807, -32.5), (73.263807, -35.5), (79.763807, -35.5)])  # lines 8-11
add_polygon(sketch13, [(79.763807, -12.5), (73.263807, -12.5), (73.263807, -15.5), (79.763807, -15.5)])  # lines 12-15
add_polygon(sketch13, [(87.5, -31.484232), (84.5, -31.484232), (84.5, -37.984232), (87.5, -37.984232)])  # lines 16-19
add_polygon(sketch13, [(105.5, -31.484232), (102.5, -31.484232), (102.5, -37.984232), (105.5, -37.984232)])  # lines 20-23
add_polygon(sketch13, [(105.5, -62.015768), (102.5, -62.015768), (102.5, -68.515768), (105.5, -68.515768)])  # lines 24-27
add_polygon(sketch13, [(87.5, -62.015768), (84.5, -62.015768), (84.5, -68.515768), (87.5, -68.515768)])  # lines 28-31
add_polygon(sketch13, [(79.763807, -64.5), (73.263807, -64.5), (73.263807, -67.5), (79.763807, -67.5)])  # lines 32-35
add_polygon(sketch13, [(79.763807, -84.5), (73.263807, -84.5), (73.263807, -87.5), (79.763807, -87.5)])  # lines 36-39
add_polygon(sketch13, [(56.951838, -84.5), (50.451838, -84.5), (50.451838, -87.5), (56.951838, -87.5)])  # lines 40-43
add_polygon(sketch13, [(56.951838, -64.5), (50.451838, -64.5), (50.451838, -67.5), (56.951838, -67.5)])  # lines 44-47
sketch13.addConstraint([
    Sketcher.Constraint("Horizontal", 0),
    Sketcher.Constraint("Vertical", 1),
    Sketcher.Constraint("Horizontal", 2),
    Sketcher.Constraint("Vertical", 3),
    Sketcher.Constraint("Horizontal", 4),
    Sketcher.Constraint("Vertical", 5),
    Sketcher.Constraint("Horizontal", 6),
    Sketcher.Constraint("Vertical", 7),
    Sketcher.Constraint("Horizontal", 8),
    Sketcher.Constraint("Vertical", 9),
    Sketcher.Constraint("Horizontal", 10),
    Sketcher.Constraint("Vertical", 11),
    Sketcher.Constraint("Horizontal", 12),
    Sketcher.Constraint("Vertical", 13),
    Sketcher.Constraint("Horizontal", 14),
    Sketcher.Constraint("Vertical", 15),
    Sketcher.Constraint("Horizontal", 16),
    Sketcher.Constraint("Vertical", 17),
    Sketcher.Constraint("Horizontal", 18),
    Sketcher.Constraint("Vertical", 19),
    Sketcher.Constraint("Horizontal", 20),
    Sketcher.Constraint("Vertical", 21),
    Sketcher.Constraint("Horizontal", 22),
    Sketcher.Constraint("Vertical", 23),
    Sketcher.Constraint("Horizontal", 24),
    Sketcher.Constraint("Vertical", 25),
    Sketcher.Constraint("Horizontal", 26),
    Sketcher.Constraint("Vertical", 27),
    Sketcher.Constraint("Horizontal", 28),
    Sketcher.Constraint("Vertical", 29),
    Sketcher.Constraint("Horizontal", 30),
    Sketcher.Constraint("Vertical", 31),
    Sketcher.Constraint("Horizontal", 32),
    Sketcher.Constraint("Vertical", 33),
    Sketcher.Constraint("Horizontal", 34),
    Sketcher.Constraint("Vertical", 35),
    Sketcher.Constraint("Horizontal", 36),
    Sketcher.Constraint("Vertical", 37),
    Sketcher.Constraint("Horizontal", 38),
    Sketcher.Constraint("Vertical", 39),
    Sketcher.Constraint("Horizontal", 40),
    Sketcher.Constraint("Vertical", 41),
    Sketcher.Constraint("Horizontal", 42),
    Sketcher.Constraint("Vertical", 43),
    Sketcher.Constraint("Horizontal", 44),
    Sketcher.Constraint("Vertical", 45),
    Sketcher.Constraint("Horizontal", 46),
    Sketcher.Constraint("Vertical", 47),
    Sketcher.Constraint("Horizontal", 3, 2, 8, 2),
    Sketcher.Constraint("Horizontal", 2, 2, 9, 2),
    Sketcher.Constraint("Horizontal", 7, 2, 12, 2),
    Sketcher.Constraint("Horizontal", 6, 2, 13, 2),
    Sketcher.Constraint("Horizontal", 19, 2, 20, 2),
    Sketcher.Constraint("Horizontal", 18, 2, 21, 2),
    Sketcher.Constraint("Horizontal", 27, 2, 28, 2),
    Sketcher.Constraint("Horizontal", 26, 2, 29, 2),
    Sketcher.Constraint("Horizontal", 39, 2, 40, 2),
    Sketcher.Constraint("Horizontal", 38, 2, 41, 2),
    Sketcher.Constraint("Horizontal", 35, 2, 44, 2),
    Sketcher.Constraint("Horizontal", 34, 2, 45, 2),
    Sketcher.Constraint("Vertical", 1, 2, 4, 2),
    Sketcher.Constraint("Vertical", 3, 2, 6, 2),
    Sketcher.Constraint("Vertical", 9, 2, 12, 2),
    Sketcher.Constraint("Vertical", 11, 2, 14, 2),
    Sketcher.Constraint("Vertical", 21, 2, 24, 2),
    Sketcher.Constraint("Vertical", 23, 2, 26, 2),
    Sketcher.Constraint("Vertical", 17, 2, 28, 2),
    Sketcher.Constraint("Vertical", 19, 2, 30, 2),
    Sketcher.Constraint("Vertical", 13, 2, 32, 2),
    Sketcher.Constraint("Vertical", 15, 2, 34, 2),
    Sketcher.Constraint("Vertical", 33, 2, 36, 2),
    Sketcher.Constraint("Vertical", 35, 2, 38, 2),
    Sketcher.Constraint("Vertical", 5, 2, 40, 2),
    Sketcher.Constraint("Vertical", 7, 2, 42, 2),
    Sketcher.Constraint("Vertical", 41, 2, 44, 2),
    Sketcher.Constraint("Vertical", 43, 2, 46, 2),
    Sketcher.Constraint("Equal", 6, 8),
    Sketcher.Constraint("Equal", 18, 20),
    Sketcher.Constraint("Equal", 30, 1),
    Sketcher.Constraint("Equal", 3, 5),
    Sketcher.Constraint("Equal", 46, 17),
    Sketcher.Constraint("Equal", 23, 25),
    Sketcher.Constraint("Equal", 15, 33),
    Sketcher.Constraint("Equal", 35, 37),
    Sketcher.Constraint("DistanceX", 16, 2, 16, 1, Q("3 mm")),
    Sketcher.Constraint("DistanceX", 0, 2, 0, 1, Q("6.5 mm")),
    Sketcher.Constraint("DistanceY", 0, 2, 4, 2, Q("20 mm")),
    Sketcher.Constraint("DistanceX", 19, 2, 20, 2, Q("15 mm")),
    Sketcher.Constraint("DistanceY", 36, 2, 33, 2, Q("17 mm")),
    Sketcher.Constraint("DistanceY", 0, 2, -1, 1, Q("32.5 mm")),
    Sketcher.Constraint("DistanceX", -1, 1, 16, 2, Q("84.5 mm")),
    Sketcher.Constraint("DistanceY", 32, 2, -1, 1, Q("64.5 mm")),
    Sketcher.Constraint("DistanceX", 3, 2, 8, 2, Q("16.311969 mm")),
    Sketcher.Constraint("DistanceX", -1, 1, 0, 2, Q("50.451838 mm")),
    Sketcher.Constraint("DistanceY", 16, 2, -1, 1, Q("31.484232 mm")),
    Sketcher.Constraint("DistanceY", 24, 2, -1, 1, Q("62.015768 mm")),
])
pocket9 = doc.addObject("PartDesign::Pocket", "Pocket008")
body.addObject(pocket9)
pocket9.Profile = sketch13
pocket9.Length = 10
pocket9.Reversed = True

# Sketch on YZ plane
sketch14 = doc.addObject("Sketcher::SketchObject", "Sketch013")
body.addObject(sketch14)
sketch14.AttachmentSupport = (doc.YZ_Plane, [""])
sketch14.MapMode = "FlatFace"
sketch14.AttachmentOffset = App.Placement(App.Vector(0, 0, 30), App.Rotation())
add_polygon(sketch14, [(79.763807, -15.5), (73.263807, -15.5), (73.263807, -32.5), (79.763807, -32.5)])  # lines 0-3
add_polygon(sketch14, [(102.5, -31.484232), (87.5, -31.484232), (87.5, -37.984232), (102.5, -37.984232)])  # lines 4-7
add_polygon(sketch14, [(102.5, -62.015768), (87.5, -62.015768), (87.5, -68.515768), (102.5, -68.515768)])  # lines 8-11
add_polygon(sketch14, [(79.763807, -67.5), (73.263807, -67.5), (73.263807, -84.5), (79.763807, -84.5)])  # lines 12-15
add_polygon(sketch14, [(56.951838, -67.5), (50.451838, -67.5), (50.451838, -84.5), (56.951838, -84.5)])  # lines 16-19
add_polygon(sketch14, [(56.951838, -15.5), (50.451838, -15.5), (50.451838, -32.5), (56.951838, -32.5)])  # lines 20-23
sketch14.addConstraint([
    Sketcher.Constraint("Horizontal", 0),
    Sketcher.Constraint("Vertical", 1),
    Sketcher.Constraint("Horizontal", 2),
    Sketcher.Constraint("Vertical", 3),
    Sketcher.Constraint("Horizontal", 4),
    Sketcher.Constraint("Vertical", 5),
    Sketcher.Constraint("Horizontal", 6),
    Sketcher.Constraint("Vertical", 7),
    Sketcher.Constraint("Horizontal", 8),
    Sketcher.Constraint("Vertical", 9),
    Sketcher.Constraint("Horizontal", 10),
    Sketcher.Constraint("Vertical", 11),
    Sketcher.Constraint("Horizontal", 12),
    Sketcher.Constraint("Vertical", 13),
    Sketcher.Constraint("Horizontal", 14),
    Sketcher.Constraint("Vertical", 15),
    Sketcher.Constraint("Horizontal", 16),
    Sketcher.Constraint("Vertical", 17),
    Sketcher.Constraint("Horizontal", 18),
    Sketcher.Constraint("Vertical", 19),
    Sketcher.Constraint("Horizontal", 20),
    Sketcher.Constraint("Vertical", 21),
    Sketcher.Constraint("Horizontal", 22),
    Sketcher.Constraint("Vertical", 23),
    Sketcher.Constraint("Horizontal", 15, 2, 16, 2),
    Sketcher.Constraint("Horizontal", 14, 2, 17, 2),
    Sketcher.Constraint("Horizontal", 3, 2, 20, 2),
    Sketcher.Constraint("Horizontal", 2, 2, 21, 2),
    Sketcher.Constraint("Vertical", 5, 2, 8, 2),
    Sketcher.Constraint("Vertical", 7, 2, 10, 2),
    Sketcher.Constraint("Vertical", 1, 2, 12, 2),
    Sketcher.Constraint("Vertical", 3, 2, 14, 2),
    Sketcher.Constraint("Vertical", 17, 2, 20, 2),
    Sketcher.Constraint("Vertical", 19, 2, 22, 2),
    Sketcher.Constraint("Equal", 14, 16),
    Sketcher.Constraint("Equal", 22, 5),
    Sketcher.Constraint("Equal", 7, 9),
    Sketcher.Constraint("Equal", 3, 13),
    Sketcher.Constraint("DistanceX", 4, 2, 4, 1, Q("15 mm")),
    Sketcher.Constraint("DistanceY", 1, 2, 1, 1, Q("17 mm")),
    Sketcher.Constraint("DistanceX", 0, 2, 0, 1, Q("6.5 mm")),
    Sketcher.Constraint("DistanceY", 0, 2, -1, 1, Q("15.5 mm")),
    Sketcher.Constraint("DistanceX", -1, 1, 4, 2, Q("87.5 mm")),
    Sketcher.Constraint("DistanceY", 12, 2, -1, 1, Q("67.5 mm")),
    Sketcher.Constraint("DistanceX", 16, 2, 12, 2, Q("22.811969 mm")),
    Sketcher.Constraint("DistanceX", -1, 1, 0, 2, Q("73.263807 mm")),
    Sketcher.Constraint("DistanceY", 4, 2, -1, 1, Q("31.484232 mm")),
    Sketcher.Constraint("DistanceY", 8, 2, -1, 1, Q("62.015768 mm")),
])
pocket10 = doc.addObject("PartDesign::Pocket", "Pocket009")
body.addObject(pocket10)
pocket10.Profile = sketch14
pocket10.Length = 5
pocket10.Reversed = True

# Sketch on YZ plane
sketch15 = doc.addObject("Sketcher::SketchObject", "Sketch014")
body.addObject(sketch15)
sketch15.AttachmentSupport = (doc.YZ_Plane, [""])
sketch15.MapMode = "FlatFace"
sketch15.AttachmentOffset = App.Placement(App.Vector(0, 0, 40), App.Rotation())
add_polygon(sketch15, [(15, -40), (5, -40), (5, -60), (15, -60)])  # lines 0-3
add_polygon(sketch15, [(105, -60), (115, -60), (115, -40), (105, -40)])  # lines 4-7
sketch15.addConstraint([
    Sketcher.Constraint("Horizontal", 0),
    Sketcher.Constraint("Vertical", 1),
    Sketcher.Constraint("Horizontal", 2),
    Sketcher.Constraint("Vertical", 3),
    Sketcher.Constraint("Horizontal", 4),
    Sketcher.Constraint("Vertical", 5),
    Sketcher.Constraint("Horizontal", 6),
    Sketcher.Constraint("Vertical", 7),
    Sketcher.Constraint("Horizontal", 2, 2, 4, 2),
    Sketcher.Constraint("Horizontal", 3, 2, 5, 2),
    Sketcher.Constraint("Equal", 2, 4),
    Sketcher.Constraint("DistanceX", 0, 2, 0, 1, Q("10 mm")),
    Sketcher.Constraint("DistanceY", 1, 2, 1, 1, Q("20 mm")),
    Sketcher.Constraint("DistanceX", -1, 1, 0, 2, Q("5 mm")),
    Sketcher.Constraint("DistanceY", 0, 2, -1, 1, Q("40 mm")),
    Sketcher.Constraint("DistanceX", -1, 1, 4, 2, Q("115 mm")),
])
pocket11 = doc.addObject("PartDesign::Pocket", "Pocket010")
body.addObject(pocket11)
pocket11.Profile = sketch15
pocket11.Length = 10

# Sketch on XZ plane
sketch16 = doc.addObject("Sketcher::SketchObject", "Sketch015")
body.addObject(sketch16)
sketch16.AttachmentSupport = (doc.XZ_Plane, [""])
sketch16.MapMode = "FlatFace"
add_polygon(sketch16, [(0, -100), (0, 0), (100, 0), (100, -100)])  # lines 0-3
add_polygon(sketch16, [(30, -10), (30, -90), (40, -90), (40, -10)])  # lines 4-7
sketch16.addConstraint([
    Sketcher.Constraint("Vertical", 0),
    Sketcher.Constraint("Horizontal", 1),
    Sketcher.Constraint("Vertical", 2),
    Sketcher.Constraint("Horizontal", 3),
    Sketcher.Constraint("Vertical", 4),
    Sketcher.Constraint("Horizontal", 5),
    Sketcher.Constraint("Vertical", 6),
    Sketcher.Constraint("Horizontal", 7),
    Sketcher.Constraint("Coincident", 0, 2, -1, 1),
    Sketcher.Constraint("Equal", 3, 0),
    Sketcher.Constraint("DistanceX", 1, 1, 1, 2, Q("100 mm")),
    Sketcher.Constraint("DistanceX", 5, 1, 5, 2, Q("10 mm")),
    Sketcher.Constraint("DistanceY", 4, 2, 4, 1, Q("80 mm")),
    Sketcher.Constraint("DistanceX", -1, 1, 4, 2, Q("30 mm")),
    Sketcher.Constraint("DistanceY", 4, 2, -1, 1, Q("90 mm")),
])
pocket12 = doc.addObject("PartDesign::Pocket", "Pocket011")
body.addObject(pocket12)
pocket12.Profile = sketch16
pocket12.Type = "ThroughAll"
pocket12.Midplane = True

doc.recompute()
